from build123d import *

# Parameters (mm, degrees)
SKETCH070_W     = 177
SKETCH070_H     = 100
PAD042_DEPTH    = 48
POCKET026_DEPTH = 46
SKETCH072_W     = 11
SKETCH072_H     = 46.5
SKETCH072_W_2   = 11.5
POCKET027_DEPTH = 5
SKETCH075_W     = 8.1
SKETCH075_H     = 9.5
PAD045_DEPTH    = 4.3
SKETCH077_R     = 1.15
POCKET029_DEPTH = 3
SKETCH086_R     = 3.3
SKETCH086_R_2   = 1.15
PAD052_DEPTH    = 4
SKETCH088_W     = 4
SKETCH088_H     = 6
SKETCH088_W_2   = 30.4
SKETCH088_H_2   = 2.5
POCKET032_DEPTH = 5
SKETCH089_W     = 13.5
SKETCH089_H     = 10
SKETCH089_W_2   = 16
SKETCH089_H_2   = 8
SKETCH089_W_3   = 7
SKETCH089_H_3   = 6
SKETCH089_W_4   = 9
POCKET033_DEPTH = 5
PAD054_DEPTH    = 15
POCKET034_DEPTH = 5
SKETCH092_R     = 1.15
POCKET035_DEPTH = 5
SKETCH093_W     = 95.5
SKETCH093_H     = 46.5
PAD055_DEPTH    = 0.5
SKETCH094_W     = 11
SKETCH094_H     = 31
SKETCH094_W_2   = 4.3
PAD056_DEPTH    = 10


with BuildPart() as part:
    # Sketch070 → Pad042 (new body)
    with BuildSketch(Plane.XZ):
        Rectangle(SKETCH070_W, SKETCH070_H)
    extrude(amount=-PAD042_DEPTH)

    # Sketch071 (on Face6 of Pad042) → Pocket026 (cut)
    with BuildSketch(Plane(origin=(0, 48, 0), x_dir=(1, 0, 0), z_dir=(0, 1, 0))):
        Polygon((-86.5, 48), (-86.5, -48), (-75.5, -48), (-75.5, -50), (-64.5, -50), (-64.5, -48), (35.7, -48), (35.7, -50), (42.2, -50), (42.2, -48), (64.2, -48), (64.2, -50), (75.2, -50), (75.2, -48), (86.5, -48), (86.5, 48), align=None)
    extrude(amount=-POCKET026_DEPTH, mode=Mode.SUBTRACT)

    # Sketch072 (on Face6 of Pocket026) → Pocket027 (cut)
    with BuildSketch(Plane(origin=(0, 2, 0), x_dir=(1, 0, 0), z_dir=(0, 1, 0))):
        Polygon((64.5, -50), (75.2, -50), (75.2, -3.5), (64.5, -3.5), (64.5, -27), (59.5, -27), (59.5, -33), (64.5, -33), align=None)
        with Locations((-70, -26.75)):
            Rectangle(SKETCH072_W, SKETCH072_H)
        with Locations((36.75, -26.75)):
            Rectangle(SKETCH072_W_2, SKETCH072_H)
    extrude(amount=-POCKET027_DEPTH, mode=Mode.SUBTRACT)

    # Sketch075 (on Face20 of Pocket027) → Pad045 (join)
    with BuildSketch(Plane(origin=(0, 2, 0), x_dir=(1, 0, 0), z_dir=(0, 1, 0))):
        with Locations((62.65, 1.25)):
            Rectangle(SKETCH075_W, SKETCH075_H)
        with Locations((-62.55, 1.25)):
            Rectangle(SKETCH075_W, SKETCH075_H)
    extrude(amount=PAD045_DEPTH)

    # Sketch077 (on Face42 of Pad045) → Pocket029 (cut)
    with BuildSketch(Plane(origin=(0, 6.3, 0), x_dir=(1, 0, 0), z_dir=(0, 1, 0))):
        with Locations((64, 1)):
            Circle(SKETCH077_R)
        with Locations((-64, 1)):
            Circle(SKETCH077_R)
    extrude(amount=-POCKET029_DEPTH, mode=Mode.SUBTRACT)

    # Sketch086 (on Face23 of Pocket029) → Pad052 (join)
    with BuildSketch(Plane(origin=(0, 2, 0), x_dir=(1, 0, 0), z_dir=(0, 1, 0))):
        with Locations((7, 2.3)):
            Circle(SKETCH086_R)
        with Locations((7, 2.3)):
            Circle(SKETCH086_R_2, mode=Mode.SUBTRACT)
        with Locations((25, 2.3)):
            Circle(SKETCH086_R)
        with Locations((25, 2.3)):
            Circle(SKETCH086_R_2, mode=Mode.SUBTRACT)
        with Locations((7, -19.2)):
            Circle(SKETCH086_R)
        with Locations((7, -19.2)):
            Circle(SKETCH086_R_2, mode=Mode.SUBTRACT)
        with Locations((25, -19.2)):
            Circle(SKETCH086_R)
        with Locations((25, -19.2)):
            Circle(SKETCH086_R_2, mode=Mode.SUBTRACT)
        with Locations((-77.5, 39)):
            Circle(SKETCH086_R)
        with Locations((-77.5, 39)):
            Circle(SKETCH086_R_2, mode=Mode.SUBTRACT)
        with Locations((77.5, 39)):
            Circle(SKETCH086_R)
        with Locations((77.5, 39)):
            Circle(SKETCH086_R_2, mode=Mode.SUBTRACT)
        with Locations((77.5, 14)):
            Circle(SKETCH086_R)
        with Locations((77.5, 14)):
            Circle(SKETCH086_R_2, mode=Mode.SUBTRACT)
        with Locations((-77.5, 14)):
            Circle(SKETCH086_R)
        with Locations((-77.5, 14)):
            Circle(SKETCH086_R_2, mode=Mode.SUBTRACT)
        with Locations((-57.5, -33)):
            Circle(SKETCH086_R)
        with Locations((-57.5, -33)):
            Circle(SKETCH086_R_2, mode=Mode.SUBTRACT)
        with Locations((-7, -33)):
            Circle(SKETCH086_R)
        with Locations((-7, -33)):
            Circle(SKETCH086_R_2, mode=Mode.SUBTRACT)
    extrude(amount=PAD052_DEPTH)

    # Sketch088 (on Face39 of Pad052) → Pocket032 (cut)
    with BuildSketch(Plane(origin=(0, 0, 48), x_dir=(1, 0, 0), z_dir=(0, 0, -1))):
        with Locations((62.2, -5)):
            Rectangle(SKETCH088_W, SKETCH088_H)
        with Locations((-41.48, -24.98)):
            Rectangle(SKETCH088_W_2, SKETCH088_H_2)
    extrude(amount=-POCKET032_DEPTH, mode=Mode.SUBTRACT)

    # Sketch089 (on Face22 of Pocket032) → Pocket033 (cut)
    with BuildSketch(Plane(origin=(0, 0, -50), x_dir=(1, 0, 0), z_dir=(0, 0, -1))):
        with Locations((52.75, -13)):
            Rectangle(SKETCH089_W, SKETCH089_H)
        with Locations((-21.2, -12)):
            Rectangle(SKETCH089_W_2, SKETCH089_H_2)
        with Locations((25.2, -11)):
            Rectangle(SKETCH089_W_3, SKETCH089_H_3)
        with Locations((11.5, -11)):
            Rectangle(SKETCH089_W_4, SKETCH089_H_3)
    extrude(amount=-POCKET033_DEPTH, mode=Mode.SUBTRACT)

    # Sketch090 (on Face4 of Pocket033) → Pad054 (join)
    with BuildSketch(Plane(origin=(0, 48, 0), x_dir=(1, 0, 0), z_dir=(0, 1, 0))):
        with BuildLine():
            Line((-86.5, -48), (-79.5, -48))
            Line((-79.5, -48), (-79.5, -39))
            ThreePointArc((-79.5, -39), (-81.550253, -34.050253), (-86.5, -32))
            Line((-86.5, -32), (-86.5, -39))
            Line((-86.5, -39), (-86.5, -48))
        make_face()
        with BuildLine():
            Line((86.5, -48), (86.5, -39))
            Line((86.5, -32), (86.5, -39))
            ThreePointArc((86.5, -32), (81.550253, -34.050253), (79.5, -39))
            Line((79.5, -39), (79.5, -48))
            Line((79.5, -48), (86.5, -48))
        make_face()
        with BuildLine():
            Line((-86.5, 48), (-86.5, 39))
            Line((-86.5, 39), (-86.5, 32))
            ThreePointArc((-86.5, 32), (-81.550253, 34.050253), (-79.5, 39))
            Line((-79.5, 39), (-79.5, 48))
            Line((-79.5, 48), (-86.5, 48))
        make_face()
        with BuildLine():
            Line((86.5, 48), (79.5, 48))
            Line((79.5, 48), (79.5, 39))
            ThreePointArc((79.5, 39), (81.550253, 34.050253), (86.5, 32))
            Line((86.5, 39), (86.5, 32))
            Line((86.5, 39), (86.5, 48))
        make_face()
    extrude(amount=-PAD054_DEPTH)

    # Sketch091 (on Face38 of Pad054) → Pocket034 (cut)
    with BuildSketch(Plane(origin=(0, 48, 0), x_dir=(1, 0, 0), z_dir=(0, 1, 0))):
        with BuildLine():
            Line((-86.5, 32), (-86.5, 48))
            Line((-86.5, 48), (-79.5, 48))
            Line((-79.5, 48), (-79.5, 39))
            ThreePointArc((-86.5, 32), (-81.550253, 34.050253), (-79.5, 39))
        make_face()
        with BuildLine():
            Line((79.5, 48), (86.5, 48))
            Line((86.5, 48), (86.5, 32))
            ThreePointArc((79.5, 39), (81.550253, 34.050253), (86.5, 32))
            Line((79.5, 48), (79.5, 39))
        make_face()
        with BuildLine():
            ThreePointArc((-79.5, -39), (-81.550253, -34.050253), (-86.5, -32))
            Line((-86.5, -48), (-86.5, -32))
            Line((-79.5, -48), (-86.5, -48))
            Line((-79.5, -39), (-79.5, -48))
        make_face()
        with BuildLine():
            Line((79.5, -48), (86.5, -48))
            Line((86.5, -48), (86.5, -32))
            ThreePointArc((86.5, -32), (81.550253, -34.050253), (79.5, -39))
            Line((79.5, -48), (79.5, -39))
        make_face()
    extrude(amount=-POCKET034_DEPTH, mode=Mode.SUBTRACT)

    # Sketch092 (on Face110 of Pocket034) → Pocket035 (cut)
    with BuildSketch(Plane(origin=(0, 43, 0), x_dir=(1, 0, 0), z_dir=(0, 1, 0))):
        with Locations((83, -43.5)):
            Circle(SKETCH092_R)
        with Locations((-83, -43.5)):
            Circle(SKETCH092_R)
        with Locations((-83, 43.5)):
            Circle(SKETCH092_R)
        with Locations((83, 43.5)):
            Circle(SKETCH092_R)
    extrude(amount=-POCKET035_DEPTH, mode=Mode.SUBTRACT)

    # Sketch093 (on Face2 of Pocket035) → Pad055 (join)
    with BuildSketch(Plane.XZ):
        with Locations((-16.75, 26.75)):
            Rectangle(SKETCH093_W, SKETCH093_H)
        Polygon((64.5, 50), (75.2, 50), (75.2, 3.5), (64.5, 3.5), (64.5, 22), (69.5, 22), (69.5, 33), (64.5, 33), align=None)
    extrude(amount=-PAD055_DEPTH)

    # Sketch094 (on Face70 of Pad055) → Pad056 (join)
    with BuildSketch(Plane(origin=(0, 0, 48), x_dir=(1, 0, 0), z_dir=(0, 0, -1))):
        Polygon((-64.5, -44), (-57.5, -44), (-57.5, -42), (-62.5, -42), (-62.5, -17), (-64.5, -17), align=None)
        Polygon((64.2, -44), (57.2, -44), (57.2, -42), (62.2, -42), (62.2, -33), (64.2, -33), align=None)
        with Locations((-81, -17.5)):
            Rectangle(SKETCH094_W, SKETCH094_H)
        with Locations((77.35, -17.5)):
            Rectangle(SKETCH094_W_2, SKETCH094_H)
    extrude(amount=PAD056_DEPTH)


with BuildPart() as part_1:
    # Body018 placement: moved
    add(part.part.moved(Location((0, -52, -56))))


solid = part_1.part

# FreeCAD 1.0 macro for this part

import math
import FreeCAD as App
import Part
import Sketcher
Q = App.Units.Quantity


def add_polygon(sketch, points):
    """Adds a closed chain of lines whose ends are joined by coincident constraints."""
    first, n = sketch.GeometryCount, len(points)
    for a, b in zip(points, points[1:] + points[:1]):
        sketch.addGeometry(Part.LineSegment(App.Vector(*a, 0), App.Vector(*b, 0)), False)
    for i in range(n):
        sketch.addConstraint(Sketcher.Constraint("Coincident", first + i, 2, first + (i + 1) % n, 1))

doc = App.newDocument("Part")
body = doc.addObject("PartDesign::Body", "Body")

# Sketch on XZ plane
sketch1 = doc.addObject("Sketcher::SketchObject", "Sketch")
body.addObject(sketch1)
sketch1.AttachmentSupport = (doc.XZ_Plane, [""])
sketch1.MapMode = "FlatFace"
add_polygon(sketch1, [(-88, 50), (-88, -50), (88, -50), (88, 50)])  # lines 0-3
sketch1.addConstraint(Sketcher.Constraint("Vertical", 0))
sketch1.addConstraint(Sketcher.Constraint("Horizontal", 1))
sketch1.addConstraint(Sketcher.Constraint("Vertical", 2))
sketch1.addConstraint(Sketcher.Constraint("Horizontal", 3))
sketch1.addConstraint(Sketcher.Constraint("Symmetric", 0, 2, 2, 2, -1, 1))
sketch1.addConstraint(Sketcher.Constraint("DistanceX", 1, 1, 1, 2, Q("177 mm")))
sketch1.addConstraint(Sketcher.Constraint("DistanceY", 0, 2, 0, 1, Q("100 mm")))
pad1 = doc.addObject("PartDesign::Pad", "Pad")
body.addObject(pad1)
pad1.Profile = sketch1
pad1.Length = 48
pad1.Reversed = True

# Sketch on XZ plane
sketch2 = doc.addObject("Sketcher::SketchObject", "Sketch001")
body.addObject(sketch2)
sketch2.AttachmentSupport = (doc.XZ_Plane, [""])
sketch2.MapMode = "FlatFace"
sketch2.AttachmentOffset = App.Placement(App.Vector(0, 0, -48), App.Rotation())
add_polygon(sketch2, [(-86.5, -48), (-86.5, 48), (-75.5, 48), (-75.5, 50), (-64.5, 50), (-64.5, 48), (35.7, 48), (35.7, 50), (42.2, 50), (42.2, 48), (64.2, 48), (64.2, 50), (75.2, 50), (75.2, 48), (86.5, 48), (86.5, -48)])  # lines 0-15
sketch2.addConstraint(Sketcher.Constraint("Vertical", 0))
sketch2.addConstraint(Sketcher.Constraint("Horizontal", 1))
sketch2.addConstraint(Sketcher.Constraint("Vertical", 2))
sketch2.addConstraint(Sketcher.Constraint("Horizontal", 3))
sketch2.addConstraint(Sketcher.Constraint("Vertical", 4))
sketch2.addConstraint(Sketcher.Constraint("Horizontal", 5))
sketch2.addConstraint(Sketcher.Constraint("Vertical", 6))
sketch2.addConstraint(Sketcher.Constraint("Horizontal", 7))
sketch2.addConstraint(Sketcher.Constraint("Vertical", 8))
sketch2.addConstraint(Sketcher.Constraint("Horizontal", 9))
sketch2.addConstraint(Sketcher.Constraint("Vertical", 10))
sketch2.addConstraint(Sketcher.Constraint("Horizontal", 11))
sketch2.addConstraint(Sketcher.Constraint("Vertical", 12))
sketch2.addConstraint(Sketcher.Constraint("Horizontal", 13))
sketch2.addConstraint(Sketcher.Constraint("Vertical", 14))
sketch2.addConstraint(Sketcher.Constraint("Horizontal", 15))
sketch2.addConstraint(Sketcher.Constraint("Symmetric", 0, 2, 14, 2, -1, 1))
sketch2.addConstraint(Sketcher.Constraint("Horizontal", 1, 2, 4, 2))
sketch2.addConstraint(Sketcher.Constraint("Horizontal", 3, 2, 6, 2))
sketch2.addConstraint(Sketcher.Constraint("Horizontal", 5, 2, 8, 2))
sketch2.addConstraint(Sketcher.Constraint("Horizontal", 7, 2, 10, 2))
sketch2.addConstraint(Sketcher.Constraint("Horizontal", 9, 2, 12, 2))
sketch2.addConstraint(Sketcher.Constraint("Equal", 1, 3))
sketch2.addConstraint(Sketcher.Constraint("Equal", 3, 11))
sketch2.addConstraint(Sketcher.Constraint("DistanceX", 1, 1, 1, 2, Q("11 mm")))
sketch2.addConstraint(Sketcher.Constraint("DistanceX", 9, 1, 9, 2, Q("22 mm")))
sketch2.addConstraint(Sketcher.Constraint("DistanceX", 15, 2, 15, 1, Q("173 mm")))
sketch2.addConstraint(Sketcher.Constraint("DistanceY", 0, 1, 0, 2, Q("96 mm")))
sketch2.addConstraint(Sketcher.Constraint("DistanceY", 2, 1, 2, 2, Q("2 mm")))
sketch2.addConstraint(Sketcher.Constraint("DistanceX", 5, 1, 5, 2, Q("100.2 mm")))
sketch2.addConstraint(Sketcher.Constraint("DistanceX", 7, 1, 7, 2, Q("6.5 mm")))
pocket1 = doc.addObject("PartDesign::Pocket", "Pocket")
body.addObject(pocket1)
pocket1.Profile = sketch2
pocket1.Length = 46
pocket1.Reversed = True

# Sketch on XZ plane
sketch3 = doc.addObject("Sketcher::SketchObject", "Sketch002")
body.addObject(sketch3)
sketch3.AttachmentSupport = (doc.XZ_Plane, [""])
sketch3.MapMode = "FlatFace"
sketch3.AttachmentOffset = App.Placement(App.Vector(0, 0, -2), App.Rotation())
add_polygon(sketch3, [(64, 50), (75, 50), (75, 4), (64, 4), (64, 27), (60, 27), (60, 33), (64, 33)])  # lines 0-7
add_polygon(sketch3, [(-76, 4), (-76, 50), (-64, 50), (-64, 4)])  # lines 8-11
add_polygon(sketch3, [(31, 4), (31, 50), (42, 50), (42, 4)])  # lines 12-15
sketch3.addConstraint(Sketcher.Constraint("Horizontal", 0))
sketch3.addConstraint(Sketcher.Constraint("Vertical", 1))
sketch3.addConstraint(Sketcher.Constraint("Horizontal", 2))
sketch3.addConstraint(Sketcher.Constraint("Vertical", 3))
sketch3.addConstraint(Sketcher.Constraint("Horizontal", 4))
sketch3.addConstraint(Sketcher.Constraint("Vertical", 5))
sketch3.addConstraint(Sketcher.Constraint("Horizontal", 6))
sketch3.addConstraint(Sketcher.Constraint("Vertical", 7))
sketch3.addConstraint(Sketcher.Constraint("Vertical", 8))
sketch3.addConstraint(Sketcher.Constraint("Horizontal", 9))
sketch3.addConstraint(Sketcher.Constraint("Vertical", 10))
sketch3.addConstraint(Sketcher.Constraint("Horizontal", 11))
sketch3.addConstraint(Sketcher.Constraint("Vertical", 12))
sketch3.addConstraint(Sketcher.Constraint("Horizontal", 13))
sketch3.addConstraint(Sketcher.Constraint("Vertical", 14))
sketch3.addConstraint(Sketcher.Constraint("Horizontal", 15))
sketch3.addConstraint(Sketcher.Constraint("Symmetric", 7, 2, 9, 2, -2))
sketch3.addConstraint(Sketcher.Constraint("Symmetric", 2, 2, 10, 2, -2))
sketch3.addConstraint(Sketcher.Constraint("Horizontal", 9, 2, 12, 2))
sketch3.addConstraint(Sketcher.Constraint("Horizontal", 11, 2, 14, 2))
sketch3.addConstraint(Sketcher.Constraint("DistanceX", 4, 2, 4, 1, Q("5 mm")))
sketch3.addConstraint(Sketcher.Constraint("DistanceX", 9, 1, 9, 2, Q("11 mm")))
sketch3.addConstraint(Sketcher.Constraint("DistanceY", 5, 1, 5, 2, Q("6 mm")))
sketch3.addConstraint(Sketcher.Constraint("DistanceY", 7, 1, 7, 2, Q("17 mm")))
sketch3.addConstraint(Sketcher.Constraint("DistanceX", 0, 1, 0, 2, Q("10.7 mm")))
sketch3.addConstraint(Sketcher.Constraint("DistanceX", 13, 1, 13, 2, Q("11.5 mm")))
sketch3.addConstraint(Sketcher.Constraint("DistanceY", 1, 2, 1, 1, Q("46.5 mm")))
sketch3.addConstraint(Sketcher.Constraint("DistanceY", -1, 1, 0, 2, Q("50 mm")))
sketch3.addConstraint(Sketcher.Constraint("DistanceX", -1, 1, 12, 2, Q("31 mm")))
sketch3.addConstraint(Sketcher.Constraint("DistanceX", 8, 2, 5, 2, Q("135 mm")))
pocket2 = doc.addObject("PartDesign::Pocket", "Pocket001")
body.addObject(pocket2)
pocket2.Profile = sketch3
pocket2.Length = 5
pocket2.Reversed = True

# Sketch on XZ plane
sketch4 = doc.addObject("Sketcher::SketchObject", "Sketch003")
body.addObject(sketch4)
sketch4.AttachmentSupport = (doc.XZ_Plane, [""])
sketch4.MapMode = "FlatFace"
sketch4.AttachmentOffset = App.Placement(App.Vector(0, 0, -2), App.Rotation())
add_polygon(sketch4, [(59, -6), (59, 4), (67, 4), (67, -6)])  # lines 0-3
add_polygon(sketch4, [(-67, -6), (-67, 4), (-58, 4), (-58, -6)])  # lines 4-7
sketch4.addConstraint(Sketcher.Constraint("Vertical", 0))
sketch4.addConstraint(Sketcher.Constraint("Horizontal", 1))
sketch4.addConstraint(Sketcher.Constraint("Vertical", 2))
sketch4.addConstraint(Sketcher.Constraint("Horizontal", 3))
sketch4.addConstraint(Sketcher.Constraint("Vertical", 4))
sketch4.addConstraint(Sketcher.Constraint("Horizontal", 5))
sketch4.addConstraint(Sketcher.Constraint("Vertical", 6))
sketch4.addConstraint(Sketcher.Constraint("Horizontal", 7))
sketch4.addConstraint(Sketcher.Constraint("Horizontal", 1, 2, 4, 2))
sketch4.addConstraint(Sketcher.Constraint("Horizontal", 3, 2, 6, 2))
sketch4.addConstraint(Sketcher.Constraint("Equal", 3, 5))
sketch4.addConstraint(Sketcher.Constraint("DistanceX", 1, 1, 1, 2, Q("8.1 mm")))
sketch4.addConstraint(Sketcher.Constraint("DistanceY", 0, 1, 0, 2, Q("9.5 mm")))
sketch4.addConstraint(Sketcher.Constraint("DistanceY", 2, 2, -1, 1, Q("6 mm")))
sketch4.addConstraint(Sketcher.Constraint("DistanceX", -1, 1, 0, 2, Q("58.6 mm")))
sketch4.addConstraint(Sketcher.Constraint("DistanceX", 4, 2, -1, 1, Q("66.6 mm")))
pad2 = doc.addObject("PartDesign::Pad", "Pad001")
body.addObject(pad2)
pad2.Profile = sketch4
pad2.Length = 4.3
pad2.Reversed = True

# Sketch on XZ plane
sketch5 = doc.addObject("Sketcher::SketchObject", "Sketch004")
body.addObject(sketch5)
sketch5.AttachmentSupport = (doc.XZ_Plane, [""])
sketch5.MapMode = "FlatFace"
sketch5.AttachmentOffset = App.Placement(App.Vector(0, 0, -6.3), App.Rotation())
sketch5.addGeometry(Part.Circle(App.Vector(64, -1, 0), App.Vector(0, 0, 1), 1.1), False)
sketch5.addGeometry(Part.Circle(App.Vector(-64, -1, 0), App.Vector(0, 0, 1), 1.1), False)
sketch5.addConstraint(Sketcher.Constraint("Equal", 0, 1))
sketch5.addConstraint(Sketcher.Constraint("Symmetric", 0, 3, 1, 3, -2))
sketch5.addConstraint(Sketcher.Constraint("Diameter", 0, Q("2.3 mm")))
sketch5.addConstraint(Sketcher.Constraint("DistanceX", -1, 1, 0, 3, Q("64 mm")))
sketch5.addConstraint(Sketcher.Constraint("DistanceY", 0, 3, -1, 1, Q("1 mm")))
pocket3 = doc.addObject("PartDesign::Pocket", "Pocket002")
body.addObject(pocket3)
pocket3.Profile = sketch5
pocket3.Length = 3
pocket3.Reversed = True

# Sketch on XZ plane
sketch6 = doc.addObject("Sketcher::SketchObject", "Sketch005")
body.addObject(sketch6)
sketch6.AttachmentSupport = (doc.XZ_Plane, [""])
sketch6.MapMode = "FlatFace"
sketch6.AttachmentOffset = App.Placement(App.Vector(0, 0, -2), App.Rotation())
sketch6.addGeometry(Part.Circle(App.Vector(7, -2.3, 0), App.Vector(0, 0, 1), 3.3), False)
sketch6.addGeometry(Part.Circle(App.Vector(7, -2.3, 0), App.Vector(0, 0, 1), 1.1), False)
sketch6.addGeometry(Part.Circle(App.Vector(25, -2.3, 0), App.Vector(0, 0, 1), 3.3), False)
sketch6.addGeometry(Part.Circle(App.Vector(25, -2.3, 0), App.Vector(0, 0, 1), 1.1), False)
sketch6.addGeometry(Part.Circle(App.Vector(7, 19.2, 0), App.Vector(0, 0, 1), 3.3), False)
sketch6.addGeometry(Part.Circle(App.Vector(7, 19.2, 0), App.Vector(0, 0, 1), 1.1), False)
sketch6.addGeometry(Part.Circle(App.Vector(25, 19.2, 0), App.Vector(0, 0, 1), 3.3), False)
sketch6.addGeometry(Part.Circle(App.Vector(25, 19.2, 0), App.Vector(0, 0, 1), 1.1), False)
sketch6.addGeometry(Part.Circle(App.Vector(-77.5, -39, 0), App.Vector(0, 0, 1), 3.3), False)
sketch6.addGeometry(Part.Circle(App.Vector(-77.5, -39, 0), App.Vector(0, 0, 1), 1.1), False)
sketch6.addGeometry(Part.Circle(App.Vector(77.5, -39, 0), App.Vector(0, 0, 1), 3.3), False)
sketch6.addGeometry(Part.Circle(App.Vector(77.5, -39, 0), App.Vector(0, 0, 1), 1.1), False)
sketch6.addGeometry(Part.Circle(App.Vector(77.5, -14, 0), App.Vector(0, 0, 1), 3.3), False)
sketch6.addGeometry(Part.Circle(App.Vector(77.5, -14, 0), App.Vector(0, 0, 1), 1.1), False)
sketch6.addGeometry(Part.Circle(App.Vector(-77.5, -14, 0), App.Vector(0, 0, 1), 3.3), False)
sketch6.addGeometry(Part.Circle(App.Vector(-77.5, -14, 0), App.Vector(0, 0, 1), 1.1), False)
sketch6.addGeometry(Part.Circle(App.Vector(-57.5, 33, 0), App.Vector(0, 0, 1), 3.3), False)
sketch6.addGeometry(Part.Circle(App.Vector(-57.5, 33, 0), App.Vector(0, 0, 1), 1.1), False)
sketch6.addGeometry(Part.Circle(App.Vector(-7, 33, 0), App.Vector(0, 0, 1), 3.3), False)
sketch6.addGeometry(Part.Circle(App.Vector(-7, 33, 0), App.Vector(0, 0, 1), 1.1), False)
sketch6.addConstraint(Sketcher.Constraint("Coincident", 1, 3, 0, 3))
sketch6.addConstraint(Sketcher.Constraint("Coincident", 3, 3, 2, 3))
sketch6.addConstraint(Sketcher.Constraint("Coincident", 5, 3, 4, 3))
sketch6.addConstraint(Sketcher.Constraint("Coincident", 7, 3, 6, 3))
sketch6.addConstraint(Sketcher.Constraint("Coincident", 9, 3, 8, 3))
sketch6.addConstraint(Sketcher.Constraint("Coincident", 11, 3, 10, 3))
sketch6.addConstraint(Sketcher.Constraint("Coincident", 13, 3, 12, 3))
sketch6.addConstraint(Sketcher.Constraint("Coincident", 15, 3, 14, 3))
sketch6.addConstraint(Sketcher.Constraint("Coincident", 17, 3, 16, 3))
sketch6.addConstraint(Sketcher.Constraint("Coincident", 19, 3, 18, 3))
sketch6.addConstraint(Sketcher.Constraint("Equal", 0, 2))
sketch6.addConstraint(Sketcher.Constraint("Equal", 1, 3))
sketch6.addConstraint(Sketcher.Constraint("Equal", 2, 4))
sketch6.addConstraint(Sketcher.Constraint("Equal", 3, 5))
sketch6.addConstraint(Sketcher.Constraint("Equal", 4, 6))
sketch6.addConstraint(Sketcher.Constraint("Equal", 5, 7))
sketch6.addConstraint(Sketcher.Constraint("Equal", 6, 8))
sketch6.addConstraint(Sketcher.Constraint("Equal", 7, 9))
sketch6.addConstraint(Sketcher.Constraint("Equal", 8, 10))
sketch6.addConstraint(Sketcher.Constraint("Equal", 9, 11))
sketch6.addConstraint(Sketcher.Constraint("Equal", 10, 12))
sketch6.addConstraint(Sketcher.Constraint("Equal", 11, 13))
sketch6.addConstraint(Sketcher.Constraint("Equal", 12, 14))
sketch6.addConstraint(Sketcher.Constraint("Equal", 13, 15))
sketch6.addConstraint(Sketcher.Constraint("Equal", 14, 16))
sketch6.addConstraint(Sketcher.Constraint("Equal", 15, 17))
sketch6.addConstraint(Sketcher.Constraint("Equal", 16, 18))
sketch6.addConstraint(Sketcher.Constraint("Equal", 17, 19))
sketch6.addConstraint(Sketcher.Constraint("Symmetric", 8, 3, 10, 3, -2))
sketch6.addConstraint(Sketcher.Constraint("Symmetric", 12, 3, 14, 3, -2))
sketch6.addConstraint(Sketcher.Constraint("Horizontal", 1, 3, 2, 3))
sketch6.addConstraint(Sketcher.Constraint("Horizontal", 5, 3, 6, 3))
sketch6.addConstraint(Sketcher.Constraint("Horizontal", 17, 3, 18, 3))
sketch6.addConstraint(Sketcher.Constraint("Vertical", 1, 3, 4, 3))
sketch6.addConstraint(Sketcher.Constraint("Vertical", 3, 3, 6, 3))
sketch6.addConstraint(Sketcher.Constraint("Vertical", 11, 3, 12, 3))
sketch6.addConstraint(Sketcher.Constraint("Diameter", 0, Q("6.6 mm")))
sketch6.addConstraint(Sketcher.Constraint("Diameter", 1, Q("2.3 mm")))
sketch6.addConstraint(Sketcher.Constraint("DistanceX", -1, 1, 0, 3, Q("7 mm")))
sketch6.addConstraint(Sketcher.Constraint("DistanceX", -1, 1, 2, 3, Q("25 mm")))
sketch6.addConstraint(Sketcher.Constraint("DistanceY", 8, 3, -1, 1, Q("39 mm")))
sketch6.addConstraint(Sketcher.Constraint("DistanceY", 12, 3, -1, 1, Q("14 mm")))
sketch6.addConstraint(Sketcher.Constraint("DistanceY", -1, 1, 16, 3, Q("33 mm")))
sketch6.addConstraint(Sketcher.Constraint("DistanceX", 18, 3, -1, 1, Q("7 mm")))
sketch6.addConstraint(Sketcher.Constraint("DistanceX", 14, 3, 16, 3, Q("20 mm")))
sketch6.addConstraint(Sketcher.Constraint("DistanceY", 0, 3, -1, 1, Q("2.3 mm")))
sketch6.addConstraint(Sketcher.Constraint("DistanceY", -1, 1, 4, 3, Q("19.2 mm")))
sketch6.addConstraint(Sketcher.Constraint("DistanceX", 8, 3, -1, 1, Q("77.5 mm")))
pad3 = doc.addObject("PartDesign::Pad", "Pad002")
body.addObject(pad3)
pad3.Profile = sketch6
pad3.Length = 4
pad3.Reversed = True

# Sketch on XY plane
sketch7 = doc.addObject("Sketcher::SketchObject", "Sketch006")
body.addObject(sketch7)
sketch7.AttachmentSupport = (doc.XY_Plane, [""])
sketch7.MapMode = "FlatFace"
sketch7.AttachmentOffset = App.Placement(App.Vector(0, 0, 48), App.Rotation())
add_polygon(sketch7, [(60.2, 2), (60.2, 8), (64.2, 8), (64.2, 2)])  # lines 0-3
add_polygon(sketch7, [(-56.7, 23.7), (-56.7, 26.2), (-26.3, 26.2), (-26.3, 23.7)])  # lines 4-7
sketch7.addConstraint(Sketcher.Constraint("Vertical", 0))
sketch7.addConstraint(Sketcher.Constraint("Horizontal", 1))
sketch7.addConstraint(Sketcher.Constraint("Vertical", 2))
sketch7.addConstraint(Sketcher.Constraint("Horizontal", 3))
sketch7.addConstraint(Sketcher.Constraint("Vertical", 4))
sketch7.addConstraint(Sketcher.Constraint("Horizontal", 5))
sketch7.addConstraint(Sketcher.Constraint("Vertical", 6))
sketch7.addConstraint(Sketcher.Constraint("Horizontal", 7))
sketch7.addConstraint(Sketcher.Constraint("DistanceX", 1, 1, 1, 2, Q("4 mm")))
sketch7.addConstraint(Sketcher.Constraint("DistanceY", 0, 1, 0, 2, Q("6 mm")))
sketch7.addConstraint(Sketcher.Constraint("DistanceX", 5, 1, 5, 2, Q("30.4 mm")))
sketch7.addConstraint(Sketcher.Constraint("DistanceY", 4, 1, 4, 2, Q("2.5 mm")))
sketch7.addConstraint(Sketcher.Constraint("DistanceY", -1, 1, 0, 2, Q("8 mm")))
sketch7.addConstraint(Sketcher.Constraint("DistanceX", -1, 1, 0, 2, Q("60.2 mm")))
sketch7.addConstraint(Sketcher.Constraint("DistanceX", 4, 2, -1, 1, Q("56.68 mm")))
sketch7.addConstraint(Sketcher.Constraint("DistanceY", -1, 1, 4, 2, Q("26.23 mm")))
pocket4 = doc.addObject("PartDesign::Pocket", "Pocket003")
body.addObject(pocket4)
pocket4.Profile = sketch7
pocket4.Length = 5
pocket4.Reversed = True

# Sketch on XY plane
sketch8 = doc.addObject("Sketcher::SketchObject", "Sketch007")
body.addObject(sketch8)
sketch8.AttachmentSupport = (doc.XY_Plane, [""])
sketch8.MapMode = "FlatFace"
sketch8.AttachmentOffset = App.Placement(App.Vector(0, 0, -50), App.Rotation())
add_polygon(sketch8, [(46, 8), (46, 18), (60, 18), (60, 8)])  # lines 0-3
add_polygon(sketch8, [(-29, 8), (-29, 16), (-13, 16), (-13, 8)])  # lines 4-7
add_polygon(sketch8, [(22, 8), (22, 14), (29, 14), (29, 8)])  # lines 8-11
add_polygon(sketch8, [(7, 8), (7, 14), (16, 14), (16, 8)])  # lines 12-15
sketch8.addConstraint(Sketcher.Constraint("Vertical", 0))
sketch8.addConstraint(Sketcher.Constraint("Horizontal", 1))
sketch8.addConstraint(Sketcher.Constraint("Vertical", 2))
sketch8.addConstraint(Sketcher.Constraint("Horizontal", 3))
sketch8.addConstraint(Sketcher.Constraint("Vertical", 4))
sketch8.addConstraint(Sketcher.Constraint("Horizontal", 5))
sketch8.addConstraint(Sketcher.Constraint("Vertical", 6))
sketch8.addConstraint(Sketcher.Constraint("Horizontal", 7))
sketch8.addConstraint(Sketcher.Constraint("Vertical", 8))
sketch8.addConstraint(Sketcher.Constraint("Horizontal", 9))
sketch8.addConstraint(Sketcher.Constraint("Vertical", 10))
sketch8.addConstraint(Sketcher.Constraint("Horizontal", 11))
sketch8.addConstraint(Sketcher.Constraint("Vertical", 12))
sketch8.addConstraint(Sketcher.Constraint("Horizontal", 13))
sketch8.addConstraint(Sketcher.Constraint("Vertical", 14))
sketch8.addConstraint(Sketcher.Constraint("Horizontal", 15))
sketch8.addConstraint(Sketcher.Constraint("Horizontal", 3, 2, 6, 2))
sketch8.addConstraint(Sketcher.Constraint("Horizontal", 7, 2, 10, 2))
sketch8.addConstraint(Sketcher.Constraint("Horizontal", 9, 2, 12, 2))
sketch8.addConstraint(Sketcher.Constraint("Horizontal", 11, 2, 14, 2))
sketch8.addConstraint(Sketcher.Constraint("DistanceX", 5, 1, 5, 2, Q("16 mm")))
sketch8.addConstraint(Sketcher.Constraint("DistanceX", 9, 1, 9, 2, Q("7 mm")))
sketch8.addConstraint(Sketcher.Constraint("DistanceX", 13, 1, 13, 2, Q("9 mm")))
sketch8.addConstraint(Sketcher.Constraint("DistanceY", 0, 1, 0, 2, Q("10 mm")))
sketch8.addConstraint(Sketcher.Constraint("DistanceY", 4, 1, 4, 2, Q("8 mm")))
sketch8.addConstraint(Sketcher.Constraint("DistanceY", 8, 1, 8, 2, Q("6 mm")))
sketch8.addConstraint(Sketcher.Constraint("DistanceX", 1, 1, 1, 2, Q("13.5 mm")))
sketch8.addConstraint(Sketcher.Constraint("DistanceX", -1, 1, 0, 2, Q("46 mm")))
sketch8.addConstraint(Sketcher.Constraint("DistanceY", -1, 1, 0, 2, Q("18 mm")))
sketch8.addConstraint(Sketcher.Constraint("DistanceX", -1, 1, 12, 2, Q("7 mm")))
sketch8.addConstraint(Sketcher.Constraint("DistanceX", 4, 2, -1, 1, Q("29.2 mm")))
sketch8.addConstraint(Sketcher.Constraint("DistanceX", -1, 1, 8, 2, Q("21.7 mm")))
pocket5 = doc.addObject("PartDesign::Pocket", "Pocket004")
body.addObject(pocket5)
pocket5.Profile = sketch8
pocket5.Length = 5
pocket5.Reversed = True

# Sketch on XZ plane
sketch9 = doc.addObject("Sketcher::SketchObject", "Sketch008")
body.addObject(sketch9)
sketch9.AttachmentSupport = (doc.XZ_Plane, [""])
sketch9.MapMode = "FlatFace"
sketch9.AttachmentOffset = App.Placement(App.Vector(0, 0, -48), App.Rotation())
sketch9.addGeometry(Part.LineSegment(App.Vector(-86, 48, 0), App.Vector(-80, 48, 0)), False)
sketch9.addGeometry(Part.LineSegment(App.Vector(-80, 48, 0), App.Vector(-80, 39, 0)), False)
sketch9.addGeometry(Part.ArcOfCircle(Part.Circle(App.Vector(-87, 39, 0), App.Vector(0, 0, 1), 7), math.radians(-90), math.radians(0)), False)
sketch9.addGeometry(Part.LineSegment(App.Vector(-86, 32, 0), App.Vector(-86, 48, 0)), False)
sketch9.addGeometry(Part.LineSegment(App.Vector(86, 48, 0), App.Vector(86, 32, 0)), False)
sketch9.addGeometry(Part.ArcOfCircle(Part.Circle(App.Vector(87, 39, 0), App.Vector(0, 0, 1), 7), math.radians(-180), math.radians(-90)), False)
sketch9.addGeometry(Part.LineSegment(App.Vector(80, 39, 0), App.Vector(80, 48, 0)), False)
sketch9.addGeometry(Part.LineSegment(App.Vector(80, 48, 0), App.Vector(86, 48, 0)), False)
sketch9.addGeometry(Part.LineSegment(App.Vector(-86, -48, 0), App.Vector(-86, -32, 0)), False)
sketch9.addGeometry(Part.ArcOfCircle(Part.Circle(App.Vector(-87, -39, 0), App.Vector(0, 0, 1), 7), math.radians(0), math.radians(90)), False)
sketch9.addGeometry(Part.LineSegment(App.Vector(-80, -39, 0), App.Vector(-80, -48, 0)), False)
sketch9.addGeometry(Part.LineSegment(App.Vector(-80, -48, 0), App.Vector(-86, -48, 0)), False)
sketch9.addGeometry(Part.LineSegment(App.Vector(86, -48, 0), App.Vector(80, -48, 0)), False)
sketch9.addGeometry(Part.LineSegment(App.Vector(80, -48, 0), App.Vector(80, -39, 0)), False)
sketch9.addGeometry(Part.ArcOfCircle(Part.Circle(App.Vector(87, -39, 0), App.Vector(0, 0, 1), 7), math.radians(90), math.radians(180)), False)
sketch9.addGeometry(Part.LineSegment(App.Vector(86, -32, 0), App.Vector(86, -48, 0)), False)
sketch9.addConstraint(Sketcher.Constraint("Coincident", 0, 2, 1, 1))
sketch9.addConstraint(Sketcher.Constraint("Tangent", 1, 2, 2, 2))
sketch9.addConstraint(Sketcher.Constraint("Coincident", 2, 1, 3, 1))
sketch9.addConstraint(Sketcher.Constraint("Coincident", 3, 2, 0, 1))
sketch9.addConstraint(Sketcher.Constraint("Coincident", 4, 2, 5, 2))
sketch9.addConstraint(Sketcher.Constraint("Tangent", 5, 1, 6, 1))
sketch9.addConstraint(Sketcher.Constraint("Coincident", 6, 2, 7, 1))
sketch9.addConstraint(Sketcher.Constraint("Coincident", 7, 2, 4, 1))
sketch9.addConstraint(Sketcher.Constraint("Coincident", 8, 2, 9, 2))
sketch9.addConstraint(Sketcher.Constraint("Tangent", 9, 1, 10, 1))
sketch9.addConstraint(Sketcher.Constraint("Coincident", 10, 2, 11, 1))
sketch9.addConstraint(Sketcher.Constraint("Coincident", 11, 2, 8, 1))
sketch9.addConstraint(Sketcher.Constraint("Coincident", 12, 2, 13, 1))
sketch9.addConstraint(Sketcher.Constraint("Tangent", 13, 2, 14, 2))
sketch9.addConstraint(Sketcher.Constraint("Coincident", 14, 1, 15, 1))
sketch9.addConstraint(Sketcher.Constraint("Coincident", 15, 2, 12, 1))
sketch9.addConstraint(Sketcher.Constraint("Horizontal", 0))
sketch9.addConstraint(Sketcher.Constraint("Vertical", 1))
sketch9.addConstraint(Sketcher.Constraint("Vertical", 3))
sketch9.addConstraint(Sketcher.Constraint("Vertical", 4))
sketch9.addConstraint(Sketcher.Constraint("Vertical", 6))
sketch9.addConstraint(Sketcher.Constraint("Horizontal", 7))
sketch9.addConstraint(Sketcher.Constraint("Vertical", 8))
sketch9.addConstraint(Sketcher.Constraint("Vertical", 10))
sketch9.addConstraint(Sketcher.Constraint("Horizontal", 11))
sketch9.addConstraint(Sketcher.Constraint("Horizontal", 12))
sketch9.addConstraint(Sketcher.Constraint("Vertical", 13))
sketch9.addConstraint(Sketcher.Constraint("Vertical", 15))
sketch9.addConstraint(Sketcher.Constraint("Equal", 2, 5))
sketch9.addConstraint(Sketcher.Constraint("Equal", 5, 9))
sketch9.addConstraint(Sketcher.Constraint("Equal", 9, 14))
sketch9.addConstraint(Sketcher.Constraint("Symmetric", 5, 3, 9, 3, -1, 1))
sketch9.addConstraint(Sketcher.Constraint("Symmetric", 2, 3, 14, 3, -1, 1))
sketch9.addConstraint(Sketcher.Constraint("Symmetric", 7, 2, 11, 2, -1, 1))
sketch9.addConstraint(Sketcher.Constraint("Symmetric", 3, 2, 15, 2, -1, 1))
sketch9.addConstraint(Sketcher.Constraint("Symmetric", 2, 3, 5, 3, -2))
sketch9.addConstraint(Sketcher.Constraint("Symmetric", 3, 2, 7, 2, -2))
sketch9.addConstraint(Sketcher.Constraint("Vertical", 9, 3, 2, 1))
sketch9.addConstraint(Sketcher.Constraint("Radius", 2, Q("7.000002 mm")))
sketch9.addConstraint(Sketcher.Constraint("DistanceY", 1, 2, 1, 1, Q("9 mm")))
sketch9.addConstraint(Sketcher.Constraint("DistanceY", -1, 1, 2, 3, Q("39.000002 mm")))
sketch9.addConstraint(Sketcher.Constraint("DistanceX", 0, 2, 5, 3, Q("166.000002 mm")))
pad4 = doc.addObject("PartDesign::Pad", "Pad003")
body.addObject(pad4)
pad4.Profile = sketch9
pad4.Length = 15

# Sketch on XZ plane
sketch10 = doc.addObject("Sketcher::SketchObject", "Sketch009")
body.addObject(sketch10)
sketch10.AttachmentSupport = (doc.XZ_Plane, [""])
sketch10.MapMode = "FlatFace"
sketch10.AttachmentOffset = App.Placement(App.Vector(0, 0, -48), App.Rotation())
sketch10.addGeometry(Part.LineSegment(App.Vector(-86, -48, 0), App.Vector(-86, -32, 0)), False)
sketch10.addGeometry(Part.ArcOfCircle(Part.Circle(App.Vector(-87, -39, 0), App.Vector(0, 0, 1), 7), math.radians(0), math.radians(90)), False)
sketch10.addGeometry(Part.LineSegment(App.Vector(-80, -39, 0), App.Vector(-80, -48, 0)), False)
sketch10.addGeometry(Part.LineSegment(App.Vector(-80, -48, 0), App.Vector(-86, -48, 0)), False)
sketch10.addGeometry(Part.LineSegment(App.Vector(86, -48, 0), App.Vector(80, -48, 0)), False)
sketch10.addGeometry(Part.LineSegment(App.Vector(80, -48, 0), App.Vector(80, -39, 0)), False)
sketch10.addGeometry(Part.ArcOfCircle(Part.Circle(App.Vector(87, -39, 0), App.Vector(0, 0, 1), 7), math.radians(90), math.radians(180)), False)
sketch10.addGeometry(Part.LineSegment(App.Vector(86, -32, 0), App.Vector(86, -48, 0)), False)
sketch10.addGeometry(Part.ArcOfCircle(Part.Circle(App.Vector(-87, 39, 0), App.Vector(0, 0, 1), 7), math.radians(-90), math.radians(0)), False)
sketch10.addGeometry(Part.LineSegment(App.Vector(-86, 32, 0), App.Vector(-86, 48, 0)), False)
sketch10.addGeometry(Part.LineSegment(App.Vector(-86, 48, 0), App.Vector(-80, 48, 0)), False)
sketch10.addGeometry(Part.LineSegment(App.Vector(-80, 48, 0), App.Vector(-80, 39, 0)), False)
sketch10.addGeometry(Part.LineSegment(App.Vector(80, 48, 0), App.Vector(86, 48, 0)), False)
sketch10.addGeometry(Part.LineSegment(App.Vector(86, 48, 0), App.Vector(86, 32, 0)), False)
sketch10.addGeometry(Part.ArcOfCircle(Part.Circle(App.Vector(87, 39, 0), App.Vector(0, 0, 1), 7), math.radians(-180), math.radians(-90)), False)
sketch10.addGeometry(Part.LineSegment(App.Vector(80, 39, 0), App.Vector(80, 48, 0)), False)
sketch10.addConstraint(Sketcher.Constraint("Coincident", 0, 2, 1, 2))
sketch10.addConstraint(Sketcher.Constraint("Tangent", 1, 1, 2, 1))
sketch10.addConstraint(Sketcher.Constraint("Coincident", 2, 2, 3, 1))
sketch10.addConstraint(Sketcher.Constraint("Coincident", 3, 2, 0, 1))
sketch10.addConstraint(Sketcher.Constraint("Coincident", 4, 2, 5, 1))
sketch10.addConstraint(Sketcher.Constraint("Tangent", 5, 2, 6, 2))
sketch10.addConstraint(Sketcher.Constraint("Coincident", 6, 1, 7, 1))
sketch10.addConstraint(Sketcher.Constraint("Coincident", 7, 2, 4, 1))
sketch10.addConstraint(Sketcher.Constraint("Coincident", 8, 1, 9, 1))
sketch10.addConstraint(Sketcher.Constraint("Coincident", 9, 2, 10, 1))
sketch10.addConstraint(Sketcher.Constraint("Coincident", 10, 2, 11, 1))
sketch10.addConstraint(Sketcher.Constraint("Tangent", 11, 2, 8, 2))
sketch10.addConstraint(Sketcher.Constraint("Coincident", 12, 2, 13, 1))
sketch10.addConstraint(Sketcher.Constraint("Coincident", 13, 2, 14, 2))
sketch10.addConstraint(Sketcher.Constraint("Tangent", 14, 1, 15, 1))
sketch10.addConstraint(Sketcher.Constraint("Coincident", 15, 2, 12, 1))
sketch10.addConstraint(Sketcher.Constraint("Vertical", 0))
sketch10.addConstraint(Sketcher.Constraint("Vertical", 2))
sketch10.addConstraint(Sketcher.Constraint("Horizontal", 3))
sketch10.addConstraint(Sketcher.Constraint("Horizontal", 4))
sketch10.addConstraint(Sketcher.Constraint("Vertical", 5))
sketch10.addConstraint(Sketcher.Constraint("Vertical", 7))
sketch10.addConstraint(Sketcher.Constraint("Vertical", 9))
sketch10.addConstraint(Sketcher.Constraint("Horizontal", 10))
sketch10.addConstraint(Sketcher.Constraint("Vertical", 11))
sketch10.addConstraint(Sketcher.Constraint("Horizontal", 12))
sketch10.addConstraint(Sketcher.Constraint("Vertical", 13))
sketch10.addConstraint(Sketcher.Constraint("Vertical", 15))
sketch10.addConstraint(Sketcher.Constraint("Equal", 1, 6))
sketch10.addConstraint(Sketcher.Constraint("Equal", 6, 8))
sketch10.addConstraint(Sketcher.Constraint("Equal", 8, 14))
sketch10.addConstraint(Sketcher.Constraint("Symmetric", 6, 3, 8, 3, -1, 1))
sketch10.addConstraint(Sketcher.Constraint("Symmetric", 1, 3, 14, 3, -1, 1))
sketch10.addConstraint(Sketcher.Constraint("Symmetric", 7, 2, 9, 2, -1, 1))
sketch10.addConstraint(Sketcher.Constraint("Symmetric", 3, 2, 12, 2, -1, 1))
sketch10.addConstraint(Sketcher.Constraint("Symmetric", 1, 3, 6, 3, -2))
sketch10.addConstraint(Sketcher.Constraint("Symmetric", 3, 2, 7, 2, -2))
sketch10.addConstraint(Sketcher.Constraint("Vertical", 8, 3, 0, 2))
sketch10.addConstraint(Sketcher.Constraint("Radius", 1, Q("7.000002 mm")))
sketch10.addConstraint(Sketcher.Constraint("DistanceY", 0, 1, 0, 2, Q("16 mm")))
sketch10.addConstraint(Sketcher.Constraint("DistanceY", 1, 3, -1, 1, Q("39.000002 mm")))
sketch10.addConstraint(Sketcher.Constraint("DistanceX", 0, 2, 6, 3, Q("173.000002 mm")))
pocket6 = doc.addObject("PartDesign::Pocket", "Pocket005")
body.addObject(pocket6)
pocket6.Profile = sketch10
pocket6.Length = 5
pocket6.Reversed = True

# Sketch on XZ plane
sketch11 = doc.addObject("Sketcher::SketchObject", "Sketch010")
body.addObject(sketch11)
sketch11.AttachmentSupport = (doc.XZ_Plane, [""])
sketch11.MapMode = "FlatFace"
sketch11.AttachmentOffset = App.Placement(App.Vector(0, 0, -43), App.Rotation())
sketch11.addGeometry(Part.Circle(App.Vector(83, 43.5, 0), App.Vector(0, 0, 1), 1.1), False)
sketch11.addGeometry(Part.Circle(App.Vector(-83, 43.5, 0), App.Vector(0, 0, 1), 1.1), False)
sketch11.addGeometry(Part.Circle(App.Vector(-83, -43.5, 0), App.Vector(0, 0, 1), 1.1), False)
sketch11.addGeometry(Part.Circle(App.Vector(83, -43.5, 0), App.Vector(0, 0, 1), 1.1), False)
sketch11.addConstraint(Sketcher.Constraint("Equal", 0, 1))
sketch11.addConstraint(Sketcher.Constraint("Equal", 1, 2))
sketch11.addConstraint(Sketcher.Constraint("Equal", 2, 3))
sketch11.addConstraint(Sketcher.Constraint("Symmetric", 0, 3, 2, 3, -1, 1))
sketch11.addConstraint(Sketcher.Constraint("Symmetric", 1, 3, 3, 3, -1, 1))
sketch11.addConstraint(Sketcher.Constraint("Symmetric", 0, 3, 1, 3, -2))
sketch11.addConstraint(Sketcher.Constraint("Diameter", 0, Q("2.3 mm")))
sketch11.addConstraint(Sketcher.Constraint("DistanceX", -1, 1, 0, 3, Q("83 mm")))
sketch11.addConstraint(Sketcher.Constraint("DistanceY", 2, 3, 1, 3, Q("87 mm")))
pocket7 = doc.addObject("PartDesign::Pocket", "Pocket006")
body.addObject(pocket7)
pocket7.Profile = sketch11
pocket7.Length = 5
pocket7.Reversed = True

# Sketch on XZ plane
sketch12 = doc.addObject("Sketcher::SketchObject", "Sketch011")
body.addObject(sketch12)
sketch12.AttachmentSupport = (doc.XZ_Plane, [""])
sketch12.MapMode = "FlatFace"
add_polygon(sketch12, [(-64, 50), (-64, 4), (31, 4), (31, 50)])  # lines 0-3
add_polygon(sketch12, [(75, 50), (64, 50), (64, 33), (70, 33), (70, 22), (64, 22), (64, 4), (75, 4)])  # lines 4-11
sketch12.addConstraint(Sketcher.Constraint("Vertical", 0))
sketch12.addConstraint(Sketcher.Constraint("Horizontal", 1))
sketch12.addConstraint(Sketcher.Constraint("Vertical", 2))
sketch12.addConstraint(Sketcher.Constraint("Horizontal", 3))
sketch12.addConstraint(Sketcher.Constraint("Horizontal", 4))
sketch12.addConstraint(Sketcher.Constraint("Vertical", 5))
sketch12.addConstraint(Sketcher.Constraint("Horizontal", 6))
sketch12.addConstraint(Sketcher.Constraint("Vertical", 7))
sketch12.addConstraint(Sketcher.Constraint("Horizontal", 8))
sketch12.addConstraint(Sketcher.Constraint("Vertical", 9))
sketch12.addConstraint(Sketcher.Constraint("Horizontal", 10))
sketch12.addConstraint(Sketcher.Constraint("Vertical", 11))
sketch12.addConstraint(Sketcher.Constraint("Symmetric", 3, 2, 4, 2, -2))
sketch12.addConstraint(Sketcher.Constraint("Symmetric", 0, 2, 9, 2, -2))
sketch12.addConstraint(Sketcher.Constraint("DistanceX", 6, 1, 6, 2, Q("5 mm")))
sketch12.addConstraint(Sketcher.Constraint("DistanceY", 5, 2, 5, 1, Q("17 mm")))
sketch12.addConstraint(Sketcher.Constraint("DistanceY", 7, 2, 7, 1, Q("11 mm")))
sketch12.addConstraint(Sketcher.Constraint("DistanceX", 1, 1, 1, 2, Q("95.5 mm")))
sketch12.addConstraint(Sketcher.Constraint("DistanceX", 4, 2, 4, 1, Q("10.7 mm")))
sketch12.addConstraint(Sketcher.Constraint("DistanceY", 0, 2, 0, 1, Q("46.5 mm")))
sketch12.addConstraint(Sketcher.Constraint("DistanceX", -1, 1, 1, 2, Q("31 mm")))
sketch12.addConstraint(Sketcher.Constraint("DistanceY", -1, 1, 2, 2, Q("50 mm")))
pad5 = doc.addObject("PartDesign::Pad", "Pad004")
body.addObject(pad5)
pad5.Profile = sketch12
pad5.Length = 0.5
pad5.Reversed = True

# Sketch on XY plane
sketch13 = doc.addObject("Sketcher::SketchObject", "Sketch012")
body.addObject(sketch13)
sketch13.AttachmentSupport = (doc.XY_Plane, [""])
sketch13.MapMode = "FlatFace"
sketch13.AttachmentOffset = App.Placement(App.Vector(0, 0, 48), App.Rotation())
add_polygon(sketch13, [(-64.5, 44), (-57.5, 44), (-57.5, 42), (-62.5, 42), (-62.5, 17), (-64.5, 17)])  # lines 0-5
add_polygon(sketch13, [(57.2, 44), (64.2, 44), (64.2, 33), (62.2, 33), (62.2, 42), (57.2, 42)])  # lines 6-11
add_polygon(sketch13, [(-86.5, 2), (-86.5, 33), (-75.5, 33), (-75.5, 2)])  # lines 12-15
add_polygon(sketch13, [(75.2, 2), (75.2, 33), (79.5, 33), (79.5, 2)])  # lines 16-19
sketch13.addConstraint(Sketcher.Constraint("Horizontal", 0))
sketch13.addConstraint(Sketcher.Constraint("Vertical", 1))
sketch13.addConstraint(Sketcher.Constraint("Horizontal", 2))
sketch13.addConstraint(Sketcher.Constraint("Vertical", 3))
sketch13.addConstraint(Sketcher.Constraint("Horizontal", 4))
sketch13.addConstraint(Sketcher.Constraint("Vertical", 5))
sketch13.addConstraint(Sketcher.Constraint("Horizontal", 6))
sketch13.addConstraint(Sketcher.Constraint("Vertical", 7))
sketch13.addConstraint(Sketcher.Constraint("Horizontal", 8))
sketch13.addConstraint(Sketcher.Constraint("Vertical", 9))
sketch13.addConstraint(Sketcher.Constraint("Horizontal", 10))
sketch13.addConstraint(Sketcher.Constraint("Vertical", 11))
sketch13.addConstraint(Sketcher.Constraint("Vertical", 12))
sketch13.addConstraint(Sketcher.Constraint("Horizontal", 13))
sketch13.addConstraint(Sketcher.Constraint("Vertical", 14))
sketch13.addConstraint(Sketcher.Constraint("Horizontal", 15))
sketch13.addConstraint(Sketcher.Constraint("Vertical", 16))
sketch13.addConstraint(Sketcher.Constraint("Horizontal", 17))
sketch13.addConstraint(Sketcher.Constraint("Vertical", 18))
sketch13.addConstraint(Sketcher.Constraint("Horizontal", 19))
sketch13.addConstraint(Sketcher.Constraint("Horizontal", 5, 2, 6, 2))
sketch13.addConstraint(Sketcher.Constraint("Horizontal", 2, 2, 9, 2))
sketch13.addConstraint(Sketcher.Constraint("Horizontal", 8, 2, 12, 2))
sketch13.addConstraint(Sketcher.Constraint("Horizontal", 13, 2, 16, 2))
sketch13.addConstraint(Sketcher.Constraint("Horizontal", 15, 2, 18, 2))
sketch13.addConstraint(Sketcher.Constraint("Equal", 0, 6))
sketch13.addConstraint(Sketcher.Constraint("Equal", 4, 8))
sketch13.addConstraint(Sketcher.Constraint("Equal", 8, 1))
sketch13.addConstraint(Sketcher.Constraint("Equal", 15, 7))
sketch13.addConstraint(Sketcher.Constraint("DistanceX", 0, 1, 0, 2, Q("7 mm")))
sketch13.addConstraint(Sketcher.Constraint("DistanceX", 2, 2, 2, 1, Q("5 mm")))
sketch13.addConstraint(Sketcher.Constraint("DistanceX", 13, 1, 13, 2, Q("11 mm")))
sketch13.addConstraint(Sketcher.Constraint("DistanceY", 3, 2, 3, 1, Q("25 mm")))
sketch13.addConstraint(Sketcher.Constraint("DistanceY", 12, 1, 12, 2, Q("31 mm")))
sketch13.addConstraint(Sketcher.Constraint("DistanceX", 17, 1, 17, 2, Q("4.3 mm")))
sketch13.addConstraint(Sketcher.Constraint("DistanceY", -1, 1, 0, 2, Q("44 mm")))
sketch13.addConstraint(Sketcher.Constraint("DistanceX", 12, 2, 5, 2, Q("22 mm")))
sketch13.addConstraint(Sketcher.Constraint("DistanceX", 7, 2, 16, 2, Q("11 mm")))
sketch13.addConstraint(Sketcher.Constraint("DistanceX", 0, 2, -1, 1, Q("57.5 mm")))
sketch13.addConstraint(Sketcher.Constraint("DistanceX", -1, 1, 6, 2, Q("64.2 mm")))
pad6 = doc.addObject("PartDesign::Pad", "Pad005")
body.addObject(pad6)
pad6.Profile = sketch13
pad6.Length = 10
pad6.Reversed = True
body2 = doc.addObject("PartDesign::Body", "Body001")
doc.recompute()

body.Placement = App.Placement(App.Vector(0, -52, -56), App.Rotation(App.Vector(0, 0, 1), 0))
boolean = doc.addObject("PartDesign::Boolean", "Boolean")
body2.addObject(boolean)
boolean.Type = "Fuse"
boolean.addObjects([body])

doc.recompute()
